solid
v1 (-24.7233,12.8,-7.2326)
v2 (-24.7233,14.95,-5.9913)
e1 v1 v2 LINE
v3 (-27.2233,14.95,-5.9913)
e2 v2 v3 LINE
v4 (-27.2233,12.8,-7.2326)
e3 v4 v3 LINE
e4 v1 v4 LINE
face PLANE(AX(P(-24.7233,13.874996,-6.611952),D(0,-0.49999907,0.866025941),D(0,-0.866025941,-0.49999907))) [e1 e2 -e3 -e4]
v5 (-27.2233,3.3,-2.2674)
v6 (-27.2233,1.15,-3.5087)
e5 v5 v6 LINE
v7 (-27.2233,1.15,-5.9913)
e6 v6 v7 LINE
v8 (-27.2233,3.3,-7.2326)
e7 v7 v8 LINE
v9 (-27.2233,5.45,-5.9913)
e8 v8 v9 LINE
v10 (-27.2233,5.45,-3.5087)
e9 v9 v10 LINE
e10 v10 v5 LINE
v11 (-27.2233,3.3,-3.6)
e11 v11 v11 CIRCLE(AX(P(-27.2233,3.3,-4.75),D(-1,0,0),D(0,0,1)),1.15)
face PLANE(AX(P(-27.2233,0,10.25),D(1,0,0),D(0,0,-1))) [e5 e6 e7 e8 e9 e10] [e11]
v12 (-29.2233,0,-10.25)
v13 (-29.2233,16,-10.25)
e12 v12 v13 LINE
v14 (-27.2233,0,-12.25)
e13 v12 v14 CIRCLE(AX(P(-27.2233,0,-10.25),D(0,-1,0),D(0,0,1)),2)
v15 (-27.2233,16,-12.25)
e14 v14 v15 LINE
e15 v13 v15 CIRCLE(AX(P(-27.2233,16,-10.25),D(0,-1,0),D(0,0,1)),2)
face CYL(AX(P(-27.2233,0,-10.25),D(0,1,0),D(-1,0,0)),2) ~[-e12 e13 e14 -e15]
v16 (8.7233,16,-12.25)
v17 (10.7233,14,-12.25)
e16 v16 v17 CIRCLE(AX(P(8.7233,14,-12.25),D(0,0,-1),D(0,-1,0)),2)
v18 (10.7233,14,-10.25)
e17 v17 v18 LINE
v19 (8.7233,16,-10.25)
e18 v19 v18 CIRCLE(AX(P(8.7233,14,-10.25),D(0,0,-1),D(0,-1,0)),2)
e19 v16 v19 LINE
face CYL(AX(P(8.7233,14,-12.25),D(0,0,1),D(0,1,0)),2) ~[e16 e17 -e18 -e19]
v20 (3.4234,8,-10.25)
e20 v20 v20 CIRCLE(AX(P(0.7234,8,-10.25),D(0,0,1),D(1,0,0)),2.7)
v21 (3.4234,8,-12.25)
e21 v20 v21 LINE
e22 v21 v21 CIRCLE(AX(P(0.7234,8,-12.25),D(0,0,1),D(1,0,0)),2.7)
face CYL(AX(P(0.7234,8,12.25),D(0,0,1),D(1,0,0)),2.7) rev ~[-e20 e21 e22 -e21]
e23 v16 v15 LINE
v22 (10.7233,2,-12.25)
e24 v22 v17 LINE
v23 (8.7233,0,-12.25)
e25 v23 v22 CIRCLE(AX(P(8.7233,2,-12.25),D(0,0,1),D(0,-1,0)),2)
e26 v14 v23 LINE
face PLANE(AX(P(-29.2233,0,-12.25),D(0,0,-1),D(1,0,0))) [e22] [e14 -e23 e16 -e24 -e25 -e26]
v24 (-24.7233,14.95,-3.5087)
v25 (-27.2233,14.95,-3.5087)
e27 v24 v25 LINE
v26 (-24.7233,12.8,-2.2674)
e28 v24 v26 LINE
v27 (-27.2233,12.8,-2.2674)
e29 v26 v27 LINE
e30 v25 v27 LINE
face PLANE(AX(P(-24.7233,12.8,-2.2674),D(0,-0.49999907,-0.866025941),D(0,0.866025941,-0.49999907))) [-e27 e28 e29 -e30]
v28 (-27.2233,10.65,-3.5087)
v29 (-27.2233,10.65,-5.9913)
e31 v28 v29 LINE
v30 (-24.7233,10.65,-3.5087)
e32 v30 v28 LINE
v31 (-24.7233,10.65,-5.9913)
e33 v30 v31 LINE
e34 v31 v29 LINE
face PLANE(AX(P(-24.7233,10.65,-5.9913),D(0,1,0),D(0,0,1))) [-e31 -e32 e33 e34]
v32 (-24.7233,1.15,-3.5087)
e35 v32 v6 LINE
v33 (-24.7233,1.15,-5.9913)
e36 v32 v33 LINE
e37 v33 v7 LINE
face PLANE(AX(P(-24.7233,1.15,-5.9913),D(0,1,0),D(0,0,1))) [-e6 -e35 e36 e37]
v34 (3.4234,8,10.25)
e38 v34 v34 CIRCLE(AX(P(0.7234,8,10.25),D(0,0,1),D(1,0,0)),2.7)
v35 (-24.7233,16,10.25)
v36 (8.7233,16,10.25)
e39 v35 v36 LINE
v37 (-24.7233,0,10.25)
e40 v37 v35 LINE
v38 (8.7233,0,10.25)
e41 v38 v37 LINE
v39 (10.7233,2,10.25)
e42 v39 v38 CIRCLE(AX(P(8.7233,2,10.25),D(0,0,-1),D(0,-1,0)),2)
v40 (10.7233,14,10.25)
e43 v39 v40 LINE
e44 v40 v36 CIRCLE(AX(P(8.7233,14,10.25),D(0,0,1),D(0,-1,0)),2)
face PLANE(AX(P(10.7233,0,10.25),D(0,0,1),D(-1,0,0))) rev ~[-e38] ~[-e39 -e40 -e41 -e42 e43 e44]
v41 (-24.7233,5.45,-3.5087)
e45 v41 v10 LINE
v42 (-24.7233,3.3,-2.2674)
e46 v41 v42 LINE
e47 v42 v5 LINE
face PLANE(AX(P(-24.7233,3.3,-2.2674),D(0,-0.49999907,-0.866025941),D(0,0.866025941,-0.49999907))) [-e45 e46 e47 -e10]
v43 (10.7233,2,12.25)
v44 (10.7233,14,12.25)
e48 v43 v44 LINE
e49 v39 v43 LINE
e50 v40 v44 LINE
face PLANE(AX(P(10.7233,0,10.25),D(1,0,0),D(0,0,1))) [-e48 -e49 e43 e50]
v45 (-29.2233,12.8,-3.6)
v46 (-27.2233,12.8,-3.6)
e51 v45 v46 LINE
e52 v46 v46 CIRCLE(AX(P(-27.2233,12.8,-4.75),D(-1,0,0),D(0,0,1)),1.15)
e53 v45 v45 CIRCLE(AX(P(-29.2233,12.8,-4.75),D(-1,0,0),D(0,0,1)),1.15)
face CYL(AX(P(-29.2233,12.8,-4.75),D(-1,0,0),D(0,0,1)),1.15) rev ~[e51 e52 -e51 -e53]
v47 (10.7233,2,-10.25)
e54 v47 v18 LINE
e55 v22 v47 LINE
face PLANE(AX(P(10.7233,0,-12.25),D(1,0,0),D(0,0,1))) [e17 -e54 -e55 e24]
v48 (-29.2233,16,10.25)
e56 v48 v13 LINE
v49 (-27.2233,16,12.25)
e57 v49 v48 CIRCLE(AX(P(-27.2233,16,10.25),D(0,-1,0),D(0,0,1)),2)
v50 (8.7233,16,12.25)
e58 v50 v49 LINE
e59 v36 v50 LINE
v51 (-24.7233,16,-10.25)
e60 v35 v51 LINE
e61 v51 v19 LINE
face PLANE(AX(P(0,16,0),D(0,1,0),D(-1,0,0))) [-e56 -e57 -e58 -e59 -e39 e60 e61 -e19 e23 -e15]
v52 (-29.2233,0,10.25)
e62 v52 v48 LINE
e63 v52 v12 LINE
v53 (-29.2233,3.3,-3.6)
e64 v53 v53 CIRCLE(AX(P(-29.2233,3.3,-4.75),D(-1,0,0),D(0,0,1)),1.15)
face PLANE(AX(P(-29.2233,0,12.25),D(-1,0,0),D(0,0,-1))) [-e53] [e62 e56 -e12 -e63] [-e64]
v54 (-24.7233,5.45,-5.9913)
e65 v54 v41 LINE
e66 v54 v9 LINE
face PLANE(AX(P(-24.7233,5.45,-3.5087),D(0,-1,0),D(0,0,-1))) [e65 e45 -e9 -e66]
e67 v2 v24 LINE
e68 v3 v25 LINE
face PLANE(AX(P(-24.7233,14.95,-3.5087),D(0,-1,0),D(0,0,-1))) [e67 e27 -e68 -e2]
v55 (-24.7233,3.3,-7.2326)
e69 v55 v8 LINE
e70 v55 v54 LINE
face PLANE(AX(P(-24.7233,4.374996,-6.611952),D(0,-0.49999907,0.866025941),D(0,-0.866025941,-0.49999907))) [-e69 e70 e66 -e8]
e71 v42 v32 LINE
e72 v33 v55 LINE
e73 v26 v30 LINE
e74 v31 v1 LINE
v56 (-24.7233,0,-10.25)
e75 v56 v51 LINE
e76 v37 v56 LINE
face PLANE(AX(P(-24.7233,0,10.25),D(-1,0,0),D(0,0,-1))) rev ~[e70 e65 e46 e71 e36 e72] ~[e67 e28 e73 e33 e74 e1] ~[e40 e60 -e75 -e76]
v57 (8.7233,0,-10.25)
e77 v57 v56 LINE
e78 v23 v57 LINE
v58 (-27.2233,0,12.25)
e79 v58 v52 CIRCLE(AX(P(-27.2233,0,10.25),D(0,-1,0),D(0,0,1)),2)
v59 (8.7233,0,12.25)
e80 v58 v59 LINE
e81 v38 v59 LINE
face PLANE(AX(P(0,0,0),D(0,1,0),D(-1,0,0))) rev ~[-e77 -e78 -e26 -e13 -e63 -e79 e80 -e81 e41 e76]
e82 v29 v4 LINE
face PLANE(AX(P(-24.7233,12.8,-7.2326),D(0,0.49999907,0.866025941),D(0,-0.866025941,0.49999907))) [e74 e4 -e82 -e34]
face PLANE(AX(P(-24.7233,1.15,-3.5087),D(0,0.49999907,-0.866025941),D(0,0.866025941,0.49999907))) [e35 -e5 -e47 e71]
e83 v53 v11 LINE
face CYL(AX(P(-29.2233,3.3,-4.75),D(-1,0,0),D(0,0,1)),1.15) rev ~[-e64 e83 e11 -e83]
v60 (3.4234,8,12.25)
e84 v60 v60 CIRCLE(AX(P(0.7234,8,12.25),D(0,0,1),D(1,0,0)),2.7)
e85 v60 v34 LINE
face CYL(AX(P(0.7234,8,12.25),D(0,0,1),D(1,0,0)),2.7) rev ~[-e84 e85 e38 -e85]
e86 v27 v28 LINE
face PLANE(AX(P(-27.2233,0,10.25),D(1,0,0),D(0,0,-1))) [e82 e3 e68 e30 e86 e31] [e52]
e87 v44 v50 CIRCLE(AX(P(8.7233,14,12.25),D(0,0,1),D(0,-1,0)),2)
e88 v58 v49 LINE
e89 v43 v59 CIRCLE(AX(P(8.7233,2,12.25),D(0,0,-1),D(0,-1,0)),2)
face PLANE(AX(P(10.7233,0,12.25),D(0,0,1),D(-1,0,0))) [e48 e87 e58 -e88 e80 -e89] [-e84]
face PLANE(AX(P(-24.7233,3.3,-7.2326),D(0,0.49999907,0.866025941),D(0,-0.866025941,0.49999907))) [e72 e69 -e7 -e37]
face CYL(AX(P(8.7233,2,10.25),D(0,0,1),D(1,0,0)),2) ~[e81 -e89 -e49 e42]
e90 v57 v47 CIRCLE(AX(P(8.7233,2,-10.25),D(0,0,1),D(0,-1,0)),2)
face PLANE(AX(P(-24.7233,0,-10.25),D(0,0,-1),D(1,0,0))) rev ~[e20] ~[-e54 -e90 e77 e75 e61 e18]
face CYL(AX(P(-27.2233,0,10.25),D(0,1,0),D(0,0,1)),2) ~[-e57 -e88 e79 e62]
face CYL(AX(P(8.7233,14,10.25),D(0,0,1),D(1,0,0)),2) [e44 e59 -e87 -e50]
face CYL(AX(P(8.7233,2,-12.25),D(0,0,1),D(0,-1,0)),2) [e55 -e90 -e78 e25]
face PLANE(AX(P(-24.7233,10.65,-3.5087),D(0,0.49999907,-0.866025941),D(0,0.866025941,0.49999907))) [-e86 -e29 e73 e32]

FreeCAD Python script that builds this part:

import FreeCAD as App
import Part
import Sketcher
Q = App.Units.Quantity


def edges_at(feature, points):
    """Names of the edges that pass closest to the given points."""
    edges = feature.Shape.Edges
    near = lambda p: min(range(len(edges)), key=lambda i: edges[i].distToShape(Part.Vertex(*p))[0])
    return sorted({f"Edge{near(p) + 1}" for p in points})

doc = App.newDocument("Part")
params = doc.addObject("Spreadsheet::Sheet", "Params")
for row, (alias, value) in enumerate([
    ("sketch1_height", "2 mm"),
    ("sketch1_height2", "20.5 mm"),
    ("pad1_length", "16 mm"),
    ("sketch2_diameter", "2.3 mm"),
    ("pocket2_length", "2.5 mm"),
    ("sketch4_diameter", "5.4 mm"),
    ("fillet_radius", "2 mm"),
], start=1):
    params.set(f"A{row}", alias)
    params.set(f"B{row}", "=" + value)
    params.setAlias(f"B{row}", alias)

body = doc.addObject("PartDesign::Body", "Body")

# Sketch on XZ plane
sketch1 = body.newObject("Sketcher::SketchObject", "Sketch")
sketch1.AttachmentSupport = (doc.getObject("XZ_Plane"), [""])
sketch1.MapMode = "FlatFace"
sketch1.addGeometry([
    Part.LineSegment(App.Vector(10.7, 12.2, 0), App.Vector(10.7, 10.2, 0)),  # 0
    Part.LineSegment(App.Vector(10.7, 10.2, 0), App.Vector(-24.7, 10.2, 0)),  # 1
    Part.LineSegment(App.Vector(-24.7, 10.2, 0), App.Vector(-24.7, -10.2, 0)),  # 2
    Part.LineSegment(App.Vector(-24.7, -10.2, 0), App.Vector(10.7, -10.2, 0)),  # 3
    Part.LineSegment(App.Vector(10.7, -10.2, 0), App.Vector(10.7, -12.2, 0)),  # 4
    Part.LineSegment(App.Vector(10.7, -12.2, 0), App.Vector(-29.2, -12.2, 0)),  # 5
    Part.LineSegment(App.Vector(-29.2, -12.2, 0), App.Vector(-29.2, 12.2, 0)),  # 6
    Part.LineSegment(App.Vector(-29.2, 12.2, 0), App.Vector(10.7, 12.2, 0)),  # 7
], False)
sketch1.addConstraint([
    Sketcher.Constraint("Coincident", 0, 2, 1, 1),
    Sketcher.Constraint("Coincident", 1, 2, 2, 1),
    Sketcher.Constraint("Coincident", 2, 2, 3, 1),
    Sketcher.Constraint("Coincident", 3, 2, 4, 1),
    Sketcher.Constraint("Coincident", 4, 2, 5, 1),
    Sketcher.Constraint("Coincident", 5, 2, 6, 1),
    Sketcher.Constraint("Coincident", 6, 2, 7, 1),
    Sketcher.Constraint("Coincident", 7, 2, 0, 1),
    Sketcher.Constraint("Vertical", 0),
    Sketcher.Constraint("Horizontal", 1),
    Sketcher.Constraint("Vertical", 2),
    Sketcher.Constraint("Horizontal", 3),
    Sketcher.Constraint("Vertical", 4),
    Sketcher.Constraint("Horizontal", 5),
    Sketcher.Constraint("Vertical", 6),
    Sketcher.Constraint("Horizontal", 7),
    Sketcher.Constraint("Symmetric", 0, 2, 3, 2, -1),
    Sketcher.Constraint("Equal", 0, 4),
    Sketcher.Constraint("DistanceY", 0, 2, 0, 1, Q("2 mm")),
    Sketcher.Constraint("DistanceY", 2, 2, 2, 1, Q("20.5 mm")),
    Sketcher.Constraint("DistanceX", 5, 2, 2, 2, Q("4.5 mm")),
    Sketcher.Constraint("DistanceX", 1, 2, 1, 1, Q("35.4466 mm")),
    Sketcher.Constraint("DistanceX", -1, 1, 0, 2, Q("10.7233 mm")),
])
sketch1.setExpression("Constraints[18]", "Params.sketch1_height")
sketch1.setExpression("Constraints[19]", "Params.sketch1_height2")
pad1 = body.newObject("PartDesign::Pad", "Pad")
pad1.Profile = sketch1
pad1.setExpression("Length", "Params.pad1_length")
pad1.Reversed = True

# Sketch on YZ plane
sketch2 = body.newObject("Sketcher::SketchObject", "Sketch001")
sketch2.AttachmentSupport = (doc.getObject("YZ_Plane"), [""])
sketch2.MapMode = "FlatFace"
sketch2.AttachmentOffset = App.Placement(App.Vector(0, 0, -29.2233), App.Rotation())
sketch2.addGeometry([
    Part.Circle(App.Vector(3.3, -4.8, 0), App.Vector(0, 0, 1), 1.1),
    Part.Circle(App.Vector(12.8, -4.8, 0), App.Vector(0, 0, 1), 1.1),
], False)
sketch2.addConstraint([
    Sketcher.Constraint("Equal", 0, 1),
    Sketcher.Constraint("Horizontal", 0, 3, 1, 3),
    Sketcher.Constraint("Diameter", 0, Q("2.3 mm")),
    Sketcher.Constraint("DistanceX", -1, 1, 0, 3, Q("3.3 mm")),
    Sketcher.Constraint("DistanceX", 0, 3, 1, 3, Q("9.5 mm")),
    Sketcher.Constraint("DistanceY", 0, 3, -1, 1, Q("4.75 mm")),
])
sketch2.setExpression("Constraints[2]", "Params.sketch2_diameter")
pocket1 = body.newObject("PartDesign::Pocket", "Pocket")
pocket1.Profile = sketch2
pocket1.Type = "ThroughAll"
pocket1.Reversed = True

# Sketch on YZ plane
sketch3 = body.newObject("Sketcher::SketchObject", "Sketch002")
sketch3.AttachmentSupport = (doc.getObject("YZ_Plane"), [""])
sketch3.MapMode = "FlatFace"
sketch3.AttachmentOffset = App.Placement(App.Vector(0, 0, -24.7233), App.Rotation())
sketch3.addGeometry([
    Part.LineSegment(App.Vector(12.8, -7.2, 0), App.Vector(14.9, -6, 0)),  # 0
    Part.LineSegment(App.Vector(14.9, -6, 0), App.Vector(14.9, -3.5, 0)),  # 1
    Part.LineSegment(App.Vector(14.9, -3.5, 0), App.Vector(12.8, -2.3, 0)),  # 2
    Part.LineSegment(App.Vector(12.8, -2.3, 0), App.Vector(10.7, -3.5, 0)),  # 3
    Part.LineSegment(App.Vector(10.7, -3.5, 0), App.Vector(10.7, -6, 0)),  # 4
    Part.LineSegment(App.Vector(10.7, -6, 0), App.Vector(12.8, -7.2, 0)),  # 5
    Part.LineSegment(App.Vector(3.3, -7.2, 0), App.Vector(5.5, -6, 0)),  # 6
    Part.LineSegment(App.Vector(5.5, -6, 0), App.Vector(5.5, -3.5, 0)),  # 7
    Part.LineSegment(App.Vector(5.5, -3.5, 0), App.Vector(3.3, -2.3, 0)),  # 8
    Part.LineSegment(App.Vector(3.3, -2.3, 0), App.Vector(1.1, -3.5, 0)),  # 9
    Part.LineSegment(App.Vector(1.1, -3.5, 0), App.Vector(1.1, -6, 0)),  # 10
    Part.LineSegment(App.Vector(1.1, -6, 0), App.Vector(3.3, -7.2, 0)),  # 11
], False)
sketch3.addConstraint([
    Sketcher.Constraint("Coincident", 0, 2, 1, 1),
    Sketcher.Constraint("Coincident", 1, 2, 2, 1),
    Sketcher.Constraint("Coincident", 2, 2, 3, 1),
    Sketcher.Constraint("Coincident", 3, 2, 4, 1),
    Sketcher.Constraint("Coincident", 4, 2, 5, 1),
    Sketcher.Constraint("Coincident", 5, 2, 0, 1),
    Sketcher.Constraint("Coincident", 6, 2, 7, 1),
    Sketcher.Constraint("Coincident", 7, 2, 8, 1),
    Sketcher.Constraint("Coincident", 8, 2, 9, 1),
    Sketcher.Constraint("Coincident", 9, 2, 10, 1),
    Sketcher.Constraint("Coincident", 10, 2, 11, 1),
    Sketcher.Constraint("Coincident", 11, 2, 6, 1),
    Sketcher.Constraint("Vertical", 1),
    Sketcher.Constraint("Vertical", 4),
    Sketcher.Constraint("Vertical", 7),
    Sketcher.Constraint("Vertical", 10),
    Sketcher.Constraint("Parallel", 0, 3),
    Sketcher.Constraint("Parallel", 2, 5),
    Sketcher.Constraint("Parallel", 3, 6),
    Sketcher.Constraint("Parallel", 5, 8),
    Sketcher.Constraint("Parallel", 6, 9),
    Sketcher.Constraint("Parallel", 8, 11),
    Sketcher.Constraint("Horizontal", 1, 2, 3, 2),
    Sketcher.Constraint("Horizontal", 0, 2, 4, 2),
    Sketcher.Constraint("Horizontal", 4, 2, 6, 2),
    Sketcher.Constraint("Horizontal", 3, 2, 7, 2),
    Sketcher.Constraint("Horizontal", 2, 2, 8, 2),
    Sketcher.Constraint("Horizontal", 7, 2, 9, 2),
    Sketcher.Constraint("Horizontal", 6, 2, 10, 2),
    Sketcher.Constraint("Vertical", 2, 2, 5, 2),
    Sketcher.Constraint("DistanceX", 3, 2, 1, 2, Q("4.3 mm")),
    Sketcher.Constraint("Angle", 0, Q("30 deg")),
    Sketcher.Constraint("DistanceX", -1, 1, 2, 2, Q("12.8 mm")),
    Sketcher.Constraint("DistanceX", -1, 1, 8, 2, Q("3.3 mm")),
    Sketcher.Constraint("DistanceY", 1, 1, 1, 2, Q("2.4826 mm")),
    Sketcher.Constraint("DistanceY", 0, 2, -1, 1, Q("5.9913 mm")),
])
pocket2 = body.newObject("PartDesign::Pocket", "Pocket001")
pocket2.Profile = sketch3
pocket2.setExpression("Length", "Params.pocket2_length")

# Sketch on XY plane
sketch4 = body.newObject("Sketcher::SketchObject", "Sketch003")
sketch4.AttachmentSupport = (doc.getObject("XY_Plane"), [""])
sketch4.MapMode = "FlatFace"
sketch4.AttachmentOffset = App.Placement(App.Vector(0, 0, 12.25), App.Rotation())
sketch4.addGeometry(Part.Circle(App.Vector(0.7, 8, 0), App.Vector(0, 0, 1), 2.7), False)
sketch4.addConstraint([
    Sketcher.Constraint("Diameter", 0, Q("5.4 mm")),
    Sketcher.Constraint("DistanceY", -1, 1, 0, 3, Q("8 mm")),
    Sketcher.Constraint("DistanceX", -1, 1, 0, 3, Q("0.7234 mm")),
])
sketch4.setExpression("Constraints[0]", "Params.sketch4_diameter")
pocket3 = body.newObject("PartDesign::Pocket", "Pocket002")
pocket3.Profile = sketch4
pocket3.Type = "ThroughAll"
doc.recompute()

fillet = body.newObject("PartDesign::Fillet", "Fillet")
fillet.Base = (pocket3, edges_at(pocket3, [
    (10.723, 0, 11.25),
    (10.723, 16, 11.25),
    (10.723, 16, -11.25),
    (10.723, 0, -11.25),
    (-29.223, 8, 12.25),
    (-29.223, 8, -12.25),
]))
fillet.setExpression("Radius", "Params.fillet_radius")

doc.recompute()
